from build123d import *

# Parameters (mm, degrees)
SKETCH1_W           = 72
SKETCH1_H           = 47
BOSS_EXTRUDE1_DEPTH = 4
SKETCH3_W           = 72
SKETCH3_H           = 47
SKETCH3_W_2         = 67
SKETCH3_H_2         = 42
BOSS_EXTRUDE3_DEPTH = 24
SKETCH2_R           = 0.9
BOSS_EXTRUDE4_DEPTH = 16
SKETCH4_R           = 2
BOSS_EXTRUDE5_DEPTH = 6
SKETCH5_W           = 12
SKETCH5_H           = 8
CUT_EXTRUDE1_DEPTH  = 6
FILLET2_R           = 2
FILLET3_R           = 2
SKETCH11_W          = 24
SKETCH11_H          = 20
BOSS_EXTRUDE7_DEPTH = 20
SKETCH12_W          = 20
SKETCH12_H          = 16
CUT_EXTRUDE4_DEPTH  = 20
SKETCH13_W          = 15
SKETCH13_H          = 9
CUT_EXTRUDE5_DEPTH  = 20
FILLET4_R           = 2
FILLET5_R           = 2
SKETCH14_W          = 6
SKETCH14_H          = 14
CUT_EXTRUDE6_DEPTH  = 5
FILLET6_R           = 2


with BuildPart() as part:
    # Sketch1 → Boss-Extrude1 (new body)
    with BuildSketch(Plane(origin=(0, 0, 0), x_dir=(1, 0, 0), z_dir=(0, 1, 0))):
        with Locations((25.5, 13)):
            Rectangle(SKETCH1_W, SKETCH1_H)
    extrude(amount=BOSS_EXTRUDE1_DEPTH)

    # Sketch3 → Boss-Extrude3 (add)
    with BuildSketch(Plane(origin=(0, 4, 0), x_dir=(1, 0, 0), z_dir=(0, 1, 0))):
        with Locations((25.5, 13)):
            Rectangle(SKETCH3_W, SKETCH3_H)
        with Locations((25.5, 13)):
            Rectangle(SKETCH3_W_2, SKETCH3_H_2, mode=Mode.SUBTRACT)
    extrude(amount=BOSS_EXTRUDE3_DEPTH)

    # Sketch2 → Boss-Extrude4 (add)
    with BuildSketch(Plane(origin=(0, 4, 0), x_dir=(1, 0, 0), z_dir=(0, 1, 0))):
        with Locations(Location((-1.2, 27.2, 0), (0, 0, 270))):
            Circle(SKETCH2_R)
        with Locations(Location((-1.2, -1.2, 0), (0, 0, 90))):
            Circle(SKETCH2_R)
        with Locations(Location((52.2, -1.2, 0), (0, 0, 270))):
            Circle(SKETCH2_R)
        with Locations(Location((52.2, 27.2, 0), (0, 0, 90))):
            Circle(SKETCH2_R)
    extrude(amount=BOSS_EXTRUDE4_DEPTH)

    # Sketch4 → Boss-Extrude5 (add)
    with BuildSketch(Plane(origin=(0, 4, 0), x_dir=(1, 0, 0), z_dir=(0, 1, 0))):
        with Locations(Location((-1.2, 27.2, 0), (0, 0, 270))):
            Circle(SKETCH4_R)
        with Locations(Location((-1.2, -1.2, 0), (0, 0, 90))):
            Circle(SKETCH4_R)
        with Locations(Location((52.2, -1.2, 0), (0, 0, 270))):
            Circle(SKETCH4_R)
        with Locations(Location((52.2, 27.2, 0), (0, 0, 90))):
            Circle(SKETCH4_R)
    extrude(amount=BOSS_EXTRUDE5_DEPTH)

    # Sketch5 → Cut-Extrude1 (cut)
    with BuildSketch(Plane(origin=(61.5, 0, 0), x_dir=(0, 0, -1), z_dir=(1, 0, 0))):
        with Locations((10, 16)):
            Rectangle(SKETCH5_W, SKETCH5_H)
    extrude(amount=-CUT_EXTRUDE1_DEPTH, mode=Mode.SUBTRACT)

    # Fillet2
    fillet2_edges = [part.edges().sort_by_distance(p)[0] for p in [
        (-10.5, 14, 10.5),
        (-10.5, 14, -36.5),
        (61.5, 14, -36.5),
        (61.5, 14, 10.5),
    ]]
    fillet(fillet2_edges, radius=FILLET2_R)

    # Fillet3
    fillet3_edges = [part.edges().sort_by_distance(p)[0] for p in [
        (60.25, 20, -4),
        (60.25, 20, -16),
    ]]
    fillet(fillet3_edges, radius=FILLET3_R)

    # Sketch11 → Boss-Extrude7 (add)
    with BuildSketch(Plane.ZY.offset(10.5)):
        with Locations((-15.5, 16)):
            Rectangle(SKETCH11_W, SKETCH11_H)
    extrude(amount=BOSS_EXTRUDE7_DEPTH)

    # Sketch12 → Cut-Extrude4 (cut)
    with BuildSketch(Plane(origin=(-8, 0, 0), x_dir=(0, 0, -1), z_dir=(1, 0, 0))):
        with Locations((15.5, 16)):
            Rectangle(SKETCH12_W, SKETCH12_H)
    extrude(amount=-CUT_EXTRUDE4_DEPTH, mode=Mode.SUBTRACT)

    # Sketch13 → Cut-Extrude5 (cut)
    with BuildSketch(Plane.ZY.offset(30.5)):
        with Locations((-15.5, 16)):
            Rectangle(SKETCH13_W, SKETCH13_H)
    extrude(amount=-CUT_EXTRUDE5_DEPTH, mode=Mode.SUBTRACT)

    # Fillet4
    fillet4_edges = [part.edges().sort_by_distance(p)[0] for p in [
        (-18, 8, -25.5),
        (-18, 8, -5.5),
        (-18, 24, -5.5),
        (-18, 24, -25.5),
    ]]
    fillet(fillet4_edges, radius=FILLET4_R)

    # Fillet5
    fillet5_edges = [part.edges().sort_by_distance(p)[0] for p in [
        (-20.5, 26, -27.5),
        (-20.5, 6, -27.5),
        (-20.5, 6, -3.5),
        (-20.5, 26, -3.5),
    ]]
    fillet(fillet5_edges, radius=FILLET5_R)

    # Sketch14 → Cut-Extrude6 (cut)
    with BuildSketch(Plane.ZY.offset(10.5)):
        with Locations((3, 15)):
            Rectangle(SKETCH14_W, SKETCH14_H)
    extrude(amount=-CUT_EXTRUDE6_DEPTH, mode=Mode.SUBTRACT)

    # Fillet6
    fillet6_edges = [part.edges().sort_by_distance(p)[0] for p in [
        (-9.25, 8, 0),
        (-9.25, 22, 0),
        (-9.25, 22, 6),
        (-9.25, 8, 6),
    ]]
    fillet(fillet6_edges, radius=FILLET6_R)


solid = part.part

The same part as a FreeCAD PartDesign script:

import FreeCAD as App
import Part
import Sketcher
from FreeCAD import Vector


def edges_at(feature, points):
    """Names of the edges that pass closest to the given points."""
    edges = feature.Shape.Edges
    near = lambda p: min(range(len(edges)), key=lambda i: edges[i].distToShape(Part.Vertex(*p))[0])
    return sorted({f"Edge{near(p) + 1}" for p in points})


def add_polygon(sketch, points):
    """Adds a closed chain of lines whose ends are joined by coincident constraints."""
    first, n = sketch.GeometryCount, len(points)
    for a, b in zip(points, points[1:] + points[:1]):
        sketch.addGeometry(Part.LineSegment(App.Vector(*a, 0), App.Vector(*b, 0)), False)
    for i in range(n):
        sketch.addConstraint(Sketcher.Constraint("Coincident", first + i, 2, first + (i + 1) % n, 1))

doc = App.newDocument("Part")
body = doc.addObject("PartDesign::Body", "Body")

sketch1 = body.newObject("Sketcher::SketchObject", "Sketch")
sketch1.AttachmentSupport = (doc.getObject("XZ_Plane"), [""])
sketch1.MapMode = "FlatFace"
add_polygon(sketch1, [(-10, -36), (-10, 10), (62, 10), (62, -36)])
sketch1.addConstraint([
    Sketcher.Constraint("Vertical", 0),
    Sketcher.Constraint("Horizontal", 1),
    Sketcher.Constraint("Vertical", 2),
    Sketcher.Constraint("Horizontal", 3),
    Sketcher.Constraint("DistanceX", 1, 1, 1, 2, 72.0),
    Sketcher.Constraint("DistanceY", 0, 1, 0, 2, 47.0),
    Sketcher.Constraint("DistanceX", 0, 2, -1, 1, 10.5),
    Sketcher.Constraint("DistanceY", -1, 1, 0, 2, 10.5),
])
pad1 = body.newObject("PartDesign::Pad", "Pad")
pad1.Profile = sketch1
pad1.Length = 4
pad1.Reversed = True

sketch2 = body.newObject("Sketcher::SketchObject", "Sketch001")
sketch2.AttachmentSupport = (doc.getObject("XZ_Plane"), [""])
sketch2.MapMode = "FlatFace"
sketch2.AttachmentOffset = App.Placement(Vector(0, 0, -4), App.Rotation())
add_polygon(sketch2, [(-10, -36), (-10, 10), (62, 10), (62, -36)])
add_polygon(sketch2, [(59, 8), (-8, 8), (-8, -34), (59, -34)])
sketch2.addConstraint([
    Sketcher.Constraint("Vertical", 0),
    Sketcher.Constraint("Horizontal", 1),
    Sketcher.Constraint("Vertical", 2),
    Sketcher.Constraint("Horizontal", 3),
    Sketcher.Constraint("Horizontal", 4),
    Sketcher.Constraint("Vertical", 5),
    Sketcher.Constraint("Horizontal", 6),
    Sketcher.Constraint("Vertical", 7),
    Sketcher.Constraint("DistanceX", 1, 1, 1, 2, 72.0),
    Sketcher.Constraint("DistanceX", 4, 2, 4, 1, 67.0),
    Sketcher.Constraint("DistanceY", 0, 1, 0, 2, 47.0),
    Sketcher.Constraint("DistanceY", 5, 2, 5, 1, 42.0),
    Sketcher.Constraint("DistanceX", 4, 2, -1, 1, 8.0),
    Sketcher.Constraint("DistanceY", -1, 1, 4, 2, 8.0),
    Sketcher.Constraint("DistanceX", 0, 2, -1, 1, 10.5),
    Sketcher.Constraint("DistanceY", -1, 1, 0, 2, 10.5),
])
pad2 = body.newObject("PartDesign::Pad", "Pad001")
pad2.Profile = sketch2
pad2.Length = 24
pad2.Reversed = True

sketch3 = body.newObject("Sketcher::SketchObject", "Sketch002")
sketch3.AttachmentSupport = (doc.getObject("XZ_Plane"), [""])
sketch3.MapMode = "FlatFace"
sketch3.AttachmentOffset = App.Placement(Vector(0, 0, -4), App.Rotation())
sketch3.addGeometry([
    Part.Circle(Vector(-1.2, -27.2, 0), Vector(0, 0, 1), 0.9),
    Part.Circle(Vector(-1.2, 1.2, 0), Vector(0, 0, 1), 0.9),
    Part.Circle(Vector(52.2, 1.2, 0), Vector(0, 0, 1), 0.9),
    Part.Circle(Vector(52.2, -27.2, 0), Vector(0, 0, 1), 0.9),
], False)
sketch3.addConstraint([
    Sketcher.Constraint("Equal", 0, 1),
    Sketcher.Constraint("Equal", 1, 2),
    Sketcher.Constraint("Equal", 2, 3),
    Sketcher.Constraint("Horizontal", 1, 3, 2, 3),
    Sketcher.Constraint("Horizontal", 0, 3, 3, 3),
    Sketcher.Constraint("Vertical", 0, 3, 1, 3),
    Sketcher.Constraint("Vertical", 2, 3, 3, 3),
    Sketcher.Constraint("Diameter", 0, 1.8),
    Sketcher.Constraint("DistanceX", 0, 3, -1, 1, 1.2),
    Sketcher.Constraint("DistanceY", 0, 3, -1, 1, 27.2),
    Sketcher.Constraint("DistanceY", -1, 1, 1, 3, 1.2),
    Sketcher.Constraint("DistanceX", -1, 1, 2, 3, 52.2),
])
pad3 = body.newObject("PartDesign::Pad", "Pad002")
pad3.Profile = sketch3
pad3.Length = 16
pad3.Reversed = True

sketch4 = body.newObject("Sketcher::SketchObject", "Sketch003")
sketch4.AttachmentSupport = (doc.getObject("XZ_Plane"), [""])
sketch4.MapMode = "FlatFace"
sketch4.AttachmentOffset = App.Placement(Vector(0, 0, -4), App.Rotation())
sketch4.addGeometry([
    Part.Circle(Vector(-1.2, -27.2, 0), Vector(0, 0, 1), 2),
    Part.Circle(Vector(-1.2, 1.2, 0), Vector(0, 0, 1), 2),
    Part.Circle(Vector(52.2, 1.2, 0), Vector(0, 0, 1), 2),
    Part.Circle(Vector(52.2, -27.2, 0), Vector(0, 0, 1), 2),
], False)
sketch4.addConstraint([
    Sketcher.Constraint("Equal", 0, 1),
    Sketcher.Constraint("Equal", 1, 2),
    Sketcher.Constraint("Equal", 2, 3),
    Sketcher.Constraint("Horizontal", 1, 3, 2, 3),
    Sketcher.Constraint("Horizontal", 0, 3, 3, 3),
    Sketcher.Constraint("Vertical", 0, 3, 1, 3),
    Sketcher.Constraint("Vertical", 2, 3, 3, 3),
    Sketcher.Constraint("Diameter", 0, 4.0),
    Sketcher.Constraint("DistanceX", 0, 3, -1, 1, 1.2),
    Sketcher.Constraint("DistanceY", 0, 3, -1, 1, 27.2),
    Sketcher.Constraint("DistanceY", -1, 1, 1, 3, 1.2),
    Sketcher.Constraint("DistanceX", -1, 1, 2, 3, 52.2),
])
pad4 = body.newObject("PartDesign::Pad", "Pad003")
pad4.Profile = sketch4
pad4.Length = 6
pad4.Reversed = True

sketch5 = body.newObject("Sketcher::SketchObject", "Sketch004")
sketch5.AttachmentSupport = (doc.getObject("YZ_Plane"), [""])
sketch5.MapMode = "FlatFace"
sketch5.AttachmentOffset = App.Placement(Vector(0, 0, 61.5), App.Rotation())
add_polygon(sketch5, [(20, -4), (12, -4), (12, -16), (20, -16)])
sketch5.addConstraint([
    Sketcher.Constraint("Horizontal", 0),
    Sketcher.Constraint("Vertical", 1),
    Sketcher.Constraint("Horizontal", 2),
    Sketcher.Constraint("Vertical", 3),
    Sketcher.Constraint("DistanceX", 0, 2, 0, 1, 8.0),
    Sketcher.Constraint("DistanceY", 1, 2, 1, 1, 12.0),
    Sketcher.Constraint("DistanceX", -1, 1, 0, 2, 12.0),
    Sketcher.Constraint("DistanceY", 0, 2, -1, 1, 4.0),
])
pocket1 = body.newObject("PartDesign::Pocket", "Pocket")
pocket1.Profile = sketch5
pocket1.Length = 6
doc.recompute()

fillet = body.newObject("PartDesign::Fillet", "Fillet")
fillet.Base = (pocket1, edges_at(pocket1, [
    (-10.5, 14, 10.5),
    (-10.5, 14, -36.5),
    (61.5, 14, -36.5),
    (61.5, 14, 10.5),
]))
fillet.Radius = 2
doc.recompute()

fillet2 = body.newObject("PartDesign::Fillet", "Fillet001")
fillet2.Base = (fillet, edges_at(fillet, [(60.25, 20, -4), (60.25, 20, -16)]))
fillet2.Radius = 2

sketch6 = body.newObject("Sketcher::SketchObject", "Sketch005")
sketch6.AttachmentSupport = (doc.getObject("YZ_Plane"), [""])
sketch6.MapMode = "FlatFace"
sketch6.AttachmentOffset = App.Placement(Vector(0, 0, -10.5), App.Rotation())
add_polygon(sketch6, [(26, -28), (6, -28), (6, -4), (26, -4)])
sketch6.addConstraint([
    Sketcher.Constraint("Horizontal", 0),
    Sketcher.Constraint("Vertical", 1),
    Sketcher.Constraint("Horizontal", 2),
    Sketcher.Constraint("Vertical", 3),
    Sketcher.Constraint("DistanceX", 0, 2, 0, 1, 20.0),
    Sketcher.Constraint("DistanceY", 1, 1, 1, 2, 24.0),
    Sketcher.Constraint("DistanceX", -1, 1, 0, 2, 6.0),
    Sketcher.Constraint("DistanceY", 0, 2, -1, 1, 27.5),
])
pad5 = body.newObject("PartDesign::Pad", "Pad004")
pad5.Profile = sketch6
pad5.Length = 20
pad5.Reversed = True

sketch7 = body.newObject("Sketcher::SketchObject", "Sketch006")
sketch7.AttachmentSupport = (doc.getObject("YZ_Plane"), [""])
sketch7.MapMode = "FlatFace"
sketch7.AttachmentOffset = App.Placement(Vector(0, 0, -8), App.Rotation())
add_polygon(sketch7, [(24, -6), (8, -6), (8, -26), (24, -26)])
sketch7.addConstraint([
    Sketcher.Constraint("Horizontal", 0),
    Sketcher.Constraint("Vertical", 1),
    Sketcher.Constraint("Horizontal", 2),
    Sketcher.Constraint("Vertical", 3),
    Sketcher.Constraint("DistanceX", 0, 2, 0, 1, 16.0),
    Sketcher.Constraint("DistanceY", 1, 2, 1, 1, 20.0),
    Sketcher.Constraint("DistanceX", -1, 1, 0, 2, 8.0),
    Sketcher.Constraint("DistanceY", 0, 2, -1, 1, 5.5),
])
pocket2 = body.newObject("PartDesign::Pocket", "Pocket001")
pocket2.Profile = sketch7
pocket2.Length = 20

sketch8 = body.newObject("Sketcher::SketchObject", "Sketch007")
sketch8.AttachmentSupport = (doc.getObject("YZ_Plane"), [""])
sketch8.MapMode = "FlatFace"
sketch8.AttachmentOffset = App.Placement(Vector(0, 0, -30.5), App.Rotation())
add_polygon(sketch8, [(20, -23), (12, -23), (12, -8), (20, -8)])
sketch8.addConstraint([
    Sketcher.Constraint("Horizontal", 0),
    Sketcher.Constraint("Vertical", 1),
    Sketcher.Constraint("Horizontal", 2),
    Sketcher.Constraint("Vertical", 3),
    Sketcher.Constraint("DistanceX", 0, 2, 0, 1, 9.0),
    Sketcher.Constraint("DistanceY", 1, 1, 1, 2, 15.0),
    Sketcher.Constraint("DistanceY", 0, 2, -1, 1, 23.0),
    Sketcher.Constraint("DistanceX", -1, 1, 0, 2, 11.5),
])
pocket3 = body.newObject("PartDesign::Pocket", "Pocket002")
pocket3.Profile = sketch8
pocket3.Length = 20
pocket3.Reversed = True
doc.recompute()

fillet3 = body.newObject("PartDesign::Fillet", "Fillet002")
fillet3.Base = (pocket3, edges_at(pocket3, [
    (-18, 8, -25.5),
    (-18, 8, -5.5),
    (-18, 24, -5.5),
    (-18, 24, -25.5),
]))
fillet3.Radius = 2
doc.recompute()

fillet4 = body.newObject("PartDesign::Fillet", "Fillet003")
fillet4.Base = (fillet3, edges_at(fillet3, [
    (-20.5, 26, -27.5),
    (-20.5, 6, -27.5),
    (-20.5, 6, -3.5),
    (-20.5, 26, -3.5),
]))
fillet4.Radius = 2

sketch9 = body.newObject("Sketcher::SketchObject", "Sketch008")
sketch9.AttachmentSupport = (doc.getObject("YZ_Plane"), [""])
sketch9.MapMode = "FlatFace"
sketch9.AttachmentOffset = App.Placement(Vector(0, 0, -10.5), App.Rotation())
add_polygon(sketch9, [(22, 0), (8, 0), (8, 6), (22, 6)])
sketch9.addConstraint([
    Sketcher.Constraint("Horizontal", 0),
    Sketcher.Constraint("Vertical", 1),
    Sketcher.Constraint("Horizontal", 2),
    Sketcher.Constraint("Vertical", 3),
    Sketcher.Constraint("PointOnObject", 0, 2, -1),
    Sketcher.Constraint("DistanceX", 0, 2, 0, 1, 14.0),
    Sketcher.Constraint("DistanceY", 1, 1, 1, 2, 6.0),
    Sketcher.Constraint("DistanceX", -1, 1, 0, 2, 8.0),
])
pocket4 = body.newObject("PartDesign::Pocket", "Pocket003")
pocket4.Profile = sketch9
pocket4.Length = 5
pocket4.Reversed = True
doc.recompute()

fillet5 = body.newObject("PartDesign::Fillet", "Fillet004")
fillet5.Base = (pocket4, edges_at(pocket4, [
    (-9.25, 8, 0),
    (-9.25, 22, 0),
    (-9.25, 22, 6),
    (-9.25, 8, 6),
]))
fillet5.Radius = 2

doc.recompute()
